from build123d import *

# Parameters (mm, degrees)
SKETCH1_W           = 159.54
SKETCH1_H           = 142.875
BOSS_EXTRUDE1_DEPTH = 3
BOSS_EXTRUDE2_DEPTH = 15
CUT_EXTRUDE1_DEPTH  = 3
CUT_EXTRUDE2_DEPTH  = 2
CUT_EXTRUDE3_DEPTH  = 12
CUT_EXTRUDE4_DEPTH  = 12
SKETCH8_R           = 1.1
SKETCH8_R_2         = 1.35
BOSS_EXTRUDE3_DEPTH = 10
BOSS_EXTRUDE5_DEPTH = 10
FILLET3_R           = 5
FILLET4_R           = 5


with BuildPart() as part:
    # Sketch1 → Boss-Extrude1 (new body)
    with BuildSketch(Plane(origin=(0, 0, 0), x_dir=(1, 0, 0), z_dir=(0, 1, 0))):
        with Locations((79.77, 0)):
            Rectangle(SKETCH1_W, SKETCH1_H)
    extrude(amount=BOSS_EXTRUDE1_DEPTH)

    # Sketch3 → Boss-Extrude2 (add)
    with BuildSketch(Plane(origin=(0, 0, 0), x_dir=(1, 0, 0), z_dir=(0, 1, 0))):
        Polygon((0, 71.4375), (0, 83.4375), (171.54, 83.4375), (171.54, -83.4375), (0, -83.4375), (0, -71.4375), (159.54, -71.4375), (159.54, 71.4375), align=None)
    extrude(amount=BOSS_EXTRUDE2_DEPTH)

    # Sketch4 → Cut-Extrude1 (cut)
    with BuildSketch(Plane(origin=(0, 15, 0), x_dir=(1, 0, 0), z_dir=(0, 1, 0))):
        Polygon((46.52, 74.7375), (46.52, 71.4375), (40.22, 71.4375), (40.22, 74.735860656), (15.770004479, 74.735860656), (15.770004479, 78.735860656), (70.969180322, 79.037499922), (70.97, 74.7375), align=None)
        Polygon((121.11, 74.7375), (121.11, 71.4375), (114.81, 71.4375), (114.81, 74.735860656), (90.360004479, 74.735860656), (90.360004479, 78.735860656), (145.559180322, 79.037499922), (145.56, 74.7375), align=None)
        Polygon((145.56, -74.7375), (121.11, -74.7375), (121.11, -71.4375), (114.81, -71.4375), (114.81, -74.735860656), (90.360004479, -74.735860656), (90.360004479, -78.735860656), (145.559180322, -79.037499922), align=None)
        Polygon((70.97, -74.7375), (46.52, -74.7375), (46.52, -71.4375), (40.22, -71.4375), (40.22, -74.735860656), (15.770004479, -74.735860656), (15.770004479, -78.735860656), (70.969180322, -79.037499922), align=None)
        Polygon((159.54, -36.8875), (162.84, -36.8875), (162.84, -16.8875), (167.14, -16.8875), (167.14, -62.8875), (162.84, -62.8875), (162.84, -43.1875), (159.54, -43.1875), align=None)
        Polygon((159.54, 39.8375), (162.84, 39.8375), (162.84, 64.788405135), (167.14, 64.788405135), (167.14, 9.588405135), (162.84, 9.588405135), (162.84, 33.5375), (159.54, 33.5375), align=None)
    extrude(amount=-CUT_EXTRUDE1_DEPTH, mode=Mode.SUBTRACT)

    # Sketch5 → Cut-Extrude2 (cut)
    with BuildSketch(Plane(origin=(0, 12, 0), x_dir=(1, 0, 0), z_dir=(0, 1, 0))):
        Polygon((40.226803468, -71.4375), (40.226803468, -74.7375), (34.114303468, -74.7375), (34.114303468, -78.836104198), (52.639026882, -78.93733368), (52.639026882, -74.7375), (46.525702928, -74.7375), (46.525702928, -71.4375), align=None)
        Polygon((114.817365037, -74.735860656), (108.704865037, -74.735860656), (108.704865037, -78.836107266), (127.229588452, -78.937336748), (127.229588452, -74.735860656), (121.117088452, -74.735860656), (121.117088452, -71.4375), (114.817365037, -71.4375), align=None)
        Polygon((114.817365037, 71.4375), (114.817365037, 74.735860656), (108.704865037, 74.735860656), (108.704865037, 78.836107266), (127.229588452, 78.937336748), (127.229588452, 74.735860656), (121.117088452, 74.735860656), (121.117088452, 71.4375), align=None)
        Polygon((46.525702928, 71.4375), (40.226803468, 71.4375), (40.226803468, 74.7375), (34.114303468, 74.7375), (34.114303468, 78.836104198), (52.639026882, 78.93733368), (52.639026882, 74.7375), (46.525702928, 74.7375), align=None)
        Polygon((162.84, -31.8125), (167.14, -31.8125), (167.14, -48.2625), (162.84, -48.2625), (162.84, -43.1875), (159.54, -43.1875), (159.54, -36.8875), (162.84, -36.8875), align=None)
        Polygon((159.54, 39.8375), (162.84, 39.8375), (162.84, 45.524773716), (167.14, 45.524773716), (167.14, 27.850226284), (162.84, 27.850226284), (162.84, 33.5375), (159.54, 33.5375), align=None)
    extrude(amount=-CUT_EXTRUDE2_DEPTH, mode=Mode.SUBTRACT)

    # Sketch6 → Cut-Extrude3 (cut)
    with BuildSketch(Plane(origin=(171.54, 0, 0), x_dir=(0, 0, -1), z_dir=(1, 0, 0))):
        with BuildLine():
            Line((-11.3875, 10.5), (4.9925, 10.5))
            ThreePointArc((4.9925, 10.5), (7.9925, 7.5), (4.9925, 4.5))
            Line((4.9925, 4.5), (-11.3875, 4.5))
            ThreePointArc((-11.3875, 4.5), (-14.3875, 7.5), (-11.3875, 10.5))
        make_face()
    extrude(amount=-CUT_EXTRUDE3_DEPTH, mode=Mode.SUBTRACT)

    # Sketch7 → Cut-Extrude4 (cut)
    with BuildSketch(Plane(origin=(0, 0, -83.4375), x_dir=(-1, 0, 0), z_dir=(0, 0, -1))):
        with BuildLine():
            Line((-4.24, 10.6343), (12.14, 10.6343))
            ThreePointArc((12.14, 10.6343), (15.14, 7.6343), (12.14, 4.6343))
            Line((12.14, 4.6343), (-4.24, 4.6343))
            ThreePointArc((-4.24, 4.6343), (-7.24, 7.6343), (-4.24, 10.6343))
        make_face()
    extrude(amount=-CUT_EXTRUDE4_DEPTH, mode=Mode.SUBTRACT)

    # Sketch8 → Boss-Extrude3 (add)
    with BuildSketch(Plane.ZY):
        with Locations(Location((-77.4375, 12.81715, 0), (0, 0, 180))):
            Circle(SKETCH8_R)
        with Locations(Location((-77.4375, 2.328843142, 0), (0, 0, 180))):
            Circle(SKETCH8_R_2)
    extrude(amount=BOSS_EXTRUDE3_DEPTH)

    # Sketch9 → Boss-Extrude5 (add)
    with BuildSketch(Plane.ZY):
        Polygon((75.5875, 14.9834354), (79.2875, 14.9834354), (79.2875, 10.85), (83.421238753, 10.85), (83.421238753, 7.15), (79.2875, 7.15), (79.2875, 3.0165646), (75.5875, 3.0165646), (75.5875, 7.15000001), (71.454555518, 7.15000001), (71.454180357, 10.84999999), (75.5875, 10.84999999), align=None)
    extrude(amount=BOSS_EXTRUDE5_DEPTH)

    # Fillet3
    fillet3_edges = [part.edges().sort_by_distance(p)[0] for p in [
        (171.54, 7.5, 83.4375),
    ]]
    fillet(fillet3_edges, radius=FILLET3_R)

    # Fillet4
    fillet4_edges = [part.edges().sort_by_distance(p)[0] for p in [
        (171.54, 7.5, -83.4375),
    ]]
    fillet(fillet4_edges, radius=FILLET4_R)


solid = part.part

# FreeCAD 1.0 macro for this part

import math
import FreeCAD as App
import Part
import Sketcher
from FreeCAD import Vector
Q = App.Units.Quantity


def edges_at(feature, points):
    """Names of the edges that pass closest to the given points."""
    edges = feature.Shape.Edges
    near = lambda p: min(range(len(edges)), key=lambda i: edges[i].distToShape(Part.Vertex(*p))[0])
    return sorted({f"Edge{near(p) + 1}" for p in points})

doc = App.newDocument("Part")
body = doc.addObject("PartDesign::Body", "Body")

sketch1 = body.newObject("Sketcher::SketchObject", "Sketch")
sketch1.AttachmentSupport = (doc.getObject("XZ_Plane"), [""])
sketch1.MapMode = "FlatFace"
sketch1.addGeometry([
    Part.LineSegment(Vector(0, -71, 0), Vector(0, 71, 0)),
    Part.LineSegment(Vector(0, 71, 0), Vector(160, 71, 0)),
    Part.LineSegment(Vector(160, 71, 0), Vector(160, -71, 0)),
    Part.LineSegment(Vector(160, -71, 0), Vector(0, -71, 0)),
], False)
sketch1.addConstraint([
    Sketcher.Constraint("Coincident", 0, 2, 1, 1),
    Sketcher.Constraint("Coincident", 1, 2, 2, 1),
    Sketcher.Constraint("Coincident", 2, 2, 3, 1),
    Sketcher.Constraint("Coincident", 3, 2, 0, 1),
    Sketcher.Constraint("Vertical", 0),
    Sketcher.Constraint("Horizontal", 1),
    Sketcher.Constraint("Vertical", 2),
    Sketcher.Constraint("Horizontal", 3),
    Sketcher.Constraint("Symmetric", 0, 2, 3, 2, -1, 1),
    Sketcher.Constraint("DistanceX", 1, 1, 1, 2, Q("159.54 mm")),
    Sketcher.Constraint("DistanceY", 0, 1, 0, 2, Q("142.875 mm")),
])
pad1 = body.newObject("PartDesign::Pad", "Pad")
pad1.Profile = sketch1
pad1.Length = 3
pad1.Reversed = True

sketch2 = body.newObject("Sketcher::SketchObject", "Sketch001")
sketch2.AttachmentSupport = (doc.getObject("XZ_Plane"), [""])
sketch2.MapMode = "FlatFace"
sketch2.addGeometry([
    Part.LineSegment(Vector(0, -83, 0), Vector(0, -71, 0)),
    Part.LineSegment(Vector(0, -71, 0), Vector(160, -71, 0)),
    Part.LineSegment(Vector(160, -71, 0), Vector(160, 71, 0)),
    Part.LineSegment(Vector(160, 71, 0), Vector(0, 71, 0)),
    Part.LineSegment(Vector(0, 71, 0), Vector(0, 83, 0)),
    Part.LineSegment(Vector(0, 83, 0), Vector(172, 83, 0)),
    Part.LineSegment(Vector(172, 83, 0), Vector(172, -83, 0)),
    Part.LineSegment(Vector(172, -83, 0), Vector(0, -83, 0)),
], False)
sketch2.addConstraint([
    Sketcher.Constraint("Coincident", 0, 2, 1, 1),
    Sketcher.Constraint("Coincident", 1, 2, 2, 1),
    Sketcher.Constraint("Coincident", 2, 2, 3, 1),
    Sketcher.Constraint("Coincident", 3, 2, 4, 1),
    Sketcher.Constraint("Coincident", 4, 2, 5, 1),
    Sketcher.Constraint("Coincident", 5, 2, 6, 1),
    Sketcher.Constraint("Coincident", 6, 2, 7, 1),
    Sketcher.Constraint("Coincident", 7, 2, 0, 1),
    Sketcher.Constraint("Vertical", 0),
    Sketcher.Constraint("Horizontal", 1),
    Sketcher.Constraint("Vertical", 2),
    Sketcher.Constraint("Horizontal", 3),
    Sketcher.Constraint("Vertical", 4),
    Sketcher.Constraint("Horizontal", 5),
    Sketcher.Constraint("Vertical", 6),
    Sketcher.Constraint("Horizontal", 7),
    Sketcher.Constraint("Symmetric", 0, 2, 3, 2, -1, 1),
    Sketcher.Constraint("Symmetric", 4, 2, 7, 2, -1),
    Sketcher.Constraint("DistanceY", 0, 1, 0, 2, Q("12 mm")),
    Sketcher.Constraint("DistanceX", 2, 2, 5, 2, Q("12 mm")),
    Sketcher.Constraint("DistanceX", 1, 1, 1, 2, Q("159.54 mm")),
    Sketcher.Constraint("DistanceY", 2, 1, 2, 2, Q("142.875 mm")),
])
pad2 = body.newObject("PartDesign::Pad", "Pad001")
pad2.Profile = sketch2
pad2.Length = 15
pad2.Reversed = True

sketch3 = body.newObject("Sketcher::SketchObject", "Sketch002")
sketch3.AttachmentSupport = (doc.getObject("XZ_Plane"), [""])
sketch3.MapMode = "FlatFace"
sketch3.AttachmentOffset = App.Placement(Vector(0, 0, -15), App.Rotation())
sketch3.addGeometry([
    Part.LineSegment(Vector(46.5, -71.4, 0), Vector(46.5, -74.7, 0)),
    Part.LineSegment(Vector(46.5, -74.7, 0), Vector(71, -74.7, 0)),
    Part.LineSegment(Vector(71, -74.7, 0), Vector(71, -79, 0)),
    Part.LineSegment(Vector(71, -79, 0), Vector(15.8, -78.7, 0)),
    Part.LineSegment(Vector(15.8, -78.7, 0), Vector(15.8, -74.7, 0)),
    Part.LineSegment(Vector(15.8, -74.7, 0), Vector(40.2, -74.7, 0)),
    Part.LineSegment(Vector(40.2, -74.7, 0), Vector(40.2, -71.4, 0)),
    Part.LineSegment(Vector(40.2, -71.4, 0), Vector(46.5, -71.4, 0)),
    Part.LineSegment(Vector(121.1, -71.4, 0), Vector(121.1, -74.7, 0)),
    Part.LineSegment(Vector(121.1, -74.7, 0), Vector(145.6, -74.7, 0)),
    Part.LineSegment(Vector(145.6, -74.7, 0), Vector(145.6, -79, 0)),
    Part.LineSegment(Vector(145.6, -79, 0), Vector(90.4, -78.7, 0)),
    Part.LineSegment(Vector(90.4, -78.7, 0), Vector(90.4, -74.7, 0)),
    Part.LineSegment(Vector(90.4, -74.7, 0), Vector(114.8, -74.7, 0)),
    Part.LineSegment(Vector(114.8, -74.7, 0), Vector(114.8, -71.4, 0)),
    Part.LineSegment(Vector(114.8, -71.4, 0), Vector(121.1, -71.4, 0)),
    Part.LineSegment(Vector(145.6, 74.7, 0), Vector(121.1, 74.7, 0)),
    Part.LineSegment(Vector(121.1, 74.7, 0), Vector(121.1, 71.4, 0)),
    Part.LineSegment(Vector(121.1, 71.4, 0), Vector(114.8, 71.4, 0)),
    Part.LineSegment(Vector(114.8, 71.4, 0), Vector(114.8, 74.7, 0)),
    Part.LineSegment(Vector(114.8, 74.7, 0), Vector(90.4, 74.7, 0)),
    Part.LineSegment(Vector(90.4, 74.7, 0), Vector(90.4, 78.7, 0)),
    Part.LineSegment(Vector(90.4, 78.7, 0), Vector(145.6, 79, 0)),
    Part.LineSegment(Vector(145.6, 79, 0), Vector(145.6, 74.7, 0)),
    Part.LineSegment(Vector(71, 74.7, 0), Vector(46.5, 74.7, 0)),
    Part.LineSegment(Vector(46.5, 74.7, 0), Vector(46.5, 71.4, 0)),
    Part.LineSegment(Vector(46.5, 71.4, 0), Vector(40.2, 71.4, 0)),
    Part.LineSegment(Vector(40.2, 71.4, 0), Vector(40.2, 74.7, 0)),
    Part.LineSegment(Vector(40.2, 74.7, 0), Vector(15.8, 74.7, 0)),
    Part.LineSegment(Vector(15.8, 74.7, 0), Vector(15.8, 78.7, 0)),
    Part.LineSegment(Vector(15.8, 78.7, 0), Vector(71, 79, 0)),
    Part.LineSegment(Vector(71, 79, 0), Vector(71, 74.7, 0)),
    Part.LineSegment(Vector(162.8, 36.9, 0), Vector(159.5, 36.9, 0)),
    Part.LineSegment(Vector(159.5, 36.9, 0), Vector(159.5, 43.2, 0)),
    Part.LineSegment(Vector(159.5, 43.2, 0), Vector(162.8, 43.2, 0)),
    Part.LineSegment(Vector(162.8, 43.2, 0), Vector(162.8, 62.9, 0)),
    Part.LineSegment(Vector(162.8, 62.9, 0), Vector(167.1, 62.9, 0)),
    Part.LineSegment(Vector(167.1, 62.9, 0), Vector(167.1, 16.9, 0)),
    Part.LineSegment(Vector(167.1, 16.9, 0), Vector(162.8, 16.9, 0)),
    Part.LineSegment(Vector(162.8, 16.9, 0), Vector(162.8, 36.9, 0)),
    Part.LineSegment(Vector(162.8, -39.8, 0), Vector(159.5, -39.8, 0)),
    Part.LineSegment(Vector(159.5, -39.8, 0), Vector(159.5, -33.5, 0)),
    Part.LineSegment(Vector(159.5, -33.5, 0), Vector(162.8, -33.5, 0)),
    Part.LineSegment(Vector(162.8, -33.5, 0), Vector(162.8, -9.6, 0)),
    Part.LineSegment(Vector(162.8, -9.6, 0), Vector(167.1, -9.6, 0)),
    Part.LineSegment(Vector(167.1, -9.6, 0), Vector(167.1, -64.8, 0)),
    Part.LineSegment(Vector(167.1, -64.8, 0), Vector(162.8, -64.8, 0)),
    Part.LineSegment(Vector(162.8, -64.8, 0), Vector(162.8, -39.8, 0)),
], False)
sketch3.addConstraint([
    Sketcher.Constraint("Coincident", 0, 2, 1, 1),
    Sketcher.Constraint("Coincident", 1, 2, 2, 1),
    Sketcher.Constraint("Coincident", 2, 2, 3, 1),
    Sketcher.Constraint("Coincident", 3, 2, 4, 1),
    Sketcher.Constraint("Coincident", 4, 2, 5, 1),
    Sketcher.Constraint("Coincident", 5, 2, 6, 1),
    Sketcher.Constraint("Coincident", 6, 2, 7, 1),
    Sketcher.Constraint("Coincident", 7, 2, 0, 1),
    Sketcher.Constraint("Coincident", 8, 2, 9, 1),
    Sketcher.Constraint("Coincident", 9, 2, 10, 1),
    Sketcher.Constraint("Coincident", 10, 2, 11, 1),
    Sketcher.Constraint("Coincident", 11, 2, 12, 1),
    Sketcher.Constraint("Coincident", 12, 2, 13, 1),
    Sketcher.Constraint("Coincident", 13, 2, 14, 1),
    Sketcher.Constraint("Coincident", 14, 2, 15, 1),
    Sketcher.Constraint("Coincident", 15, 2, 8, 1),
    Sketcher.Constraint("Coincident", 16, 2, 17, 1),
    Sketcher.Constraint("Coincident", 17, 2, 18, 1),
    Sketcher.Constraint("Coincident", 18, 2, 19, 1),
    Sketcher.Constraint("Coincident", 19, 2, 20, 1),
    Sketcher.Constraint("Coincident", 20, 2, 21, 1),
    Sketcher.Constraint("Coincident", 21, 2, 22, 1),
    Sketcher.Constraint("Coincident", 22, 2, 23, 1),
    Sketcher.Constraint("Coincident", 23, 2, 16, 1),
    Sketcher.Constraint("Coincident", 24, 2, 25, 1),
    Sketcher.Constraint("Coincident", 25, 2, 26, 1),
    Sketcher.Constraint("Coincident", 26, 2, 27, 1),
    Sketcher.Constraint("Coincident", 27, 2, 28, 1),
    Sketcher.Constraint("Coincident", 28, 2, 29, 1),
    Sketcher.Constraint("Coincident", 29, 2, 30, 1),
    Sketcher.Constraint("Coincident", 30, 2, 31, 1),
    Sketcher.Constraint("Coincident", 31, 2, 24, 1),
    Sketcher.Constraint("Coincident", 32, 2, 33, 1),
    Sketcher.Constraint("Coincident", 33, 2, 34, 1),
    Sketcher.Constraint("Coincident", 34, 2, 35, 1),
    Sketcher.Constraint("Coincident", 35, 2, 36, 1),
    Sketcher.Constraint("Coincident", 36, 2, 37, 1),
    Sketcher.Constraint("Coincident", 37, 2, 38, 1),
    Sketcher.Constraint("Coincident", 38, 2, 39, 1),
    Sketcher.Constraint("Coincident", 39, 2, 32, 1),
    Sketcher.Constraint("Coincident", 40, 2, 41, 1),
    Sketcher.Constraint("Coincident", 41, 2, 42, 1),
    Sketcher.Constraint("Coincident", 42, 2, 43, 1),
    Sketcher.Constraint("Coincident", 43, 2, 44, 1),
    Sketcher.Constraint("Coincident", 44, 2, 45, 1),
    Sketcher.Constraint("Coincident", 45, 2, 46, 1),
    Sketcher.Constraint("Coincident", 46, 2, 47, 1),
    Sketcher.Constraint("Coincident", 47, 2, 40, 1),
    Sketcher.Constraint("Vertical", 0),
    Sketcher.Constraint("Horizontal", 1),
    Sketcher.Constraint("Vertical", 4),
    Sketcher.Constraint("Horizontal", 5),
    Sketcher.Constraint("Vertical", 6),
    Sketcher.Constraint("Horizontal", 7),
    Sketcher.Constraint("Vertical", 8),
    Sketcher.Constraint("Horizontal", 9),
    Sketcher.Constraint("Vertical", 12),
    Sketcher.Constraint("Horizontal", 13),
    Sketcher.Constraint("Vertical", 14),
    Sketcher.Constraint("Horizontal", 15),
    Sketcher.Constraint("Horizontal", 16),
    Sketcher.Constraint("Vertical", 17),
    Sketcher.Constraint("Horizontal", 18),
    Sketcher.Constraint("Vertical", 19),
    Sketcher.Constraint("Horizontal", 20),
    Sketcher.Constraint("Vertical", 21),
    Sketcher.Constraint("Horizontal", 24),
    Sketcher.Constraint("Vertical", 25),
    Sketcher.Constraint("Horizontal", 26),
    Sketcher.Constraint("Vertical", 27),
    Sketcher.Constraint("Horizontal", 28),
    Sketcher.Constraint("Vertical", 29),
    Sketcher.Constraint("Horizontal", 32),
    Sketcher.Constraint("Vertical", 33),
    Sketcher.Constraint("Horizontal", 34),
    Sketcher.Constraint("Vertical", 35),
    Sketcher.Constraint("Horizontal", 36),
    Sketcher.Constraint("Vertical", 37),
    Sketcher.Constraint("Horizontal", 38),
    Sketcher.Constraint("Vertical", 39),
    Sketcher.Constraint("Horizontal", 40),
    Sketcher.Constraint("Vertical", 41),
    Sketcher.Constraint("Horizontal", 42),
    Sketcher.Constraint("Vertical", 43),
    Sketcher.Constraint("Horizontal", 44),
    Sketcher.Constraint("Vertical", 45),
    Sketcher.Constraint("Horizontal", 46),
    Sketcher.Constraint("Vertical", 47),
    Sketcher.Constraint("Symmetric", 8, 2, 16, 2, -1),
    Sketcher.Constraint("Symmetric", 14, 2, 18, 2, -1),
    Sketcher.Constraint("Symmetric", 12, 2, 20, 2, -1),
    Sketcher.Constraint("Symmetric", 10, 2, 22, 2, -1),
    Sketcher.Constraint("Symmetric", 0, 2, 24, 2, -1),
    Sketcher.Constraint("Symmetric", 6, 2, 26, 2, -1),
    Sketcher.Constraint("Symmetric", 4, 2, 28, 2, -1),
    Sketcher.Constraint("Symmetric", 2, 2, 30, 2, -1),
    Sketcher.Constraint("Parallel", 2, 10),
    Sketcher.Constraint("Parallel", 3, 11),
    Sketcher.Constraint("Parallel", 22, 30),
    Sketcher.Constraint("Parallel", 23, 31),
    Sketcher.Constraint("Horizontal", 1, 2, 8, 2),
    Sketcher.Constraint("Horizontal", 2, 2, 10, 2),
    Sketcher.Constraint("Horizontal", 3, 2, 11, 2),
    Sketcher.Constraint("Horizontal", 5, 2, 12, 2),
    Sketcher.Constraint("Horizontal", 7, 2, 14, 2),
    Sketcher.Constraint("Vertical", 9, 2, 23, 2),
    Sketcher.Constraint("Vertical", 35, 2, 38, 2),
    Sketcher.Constraint("Vertical", 33, 2, 40, 2),
    Sketcher.Constraint("Vertical", 39, 2, 42, 2),
    Sketcher.Constraint("Vertical", 37, 2, 44, 2),
    Sketcher.Constraint("Vertical", 43, 2, 46, 2),
    Sketcher.Constraint("Equal", 1, 9),
    Sketcher.Constraint("Equal", 5, 13),
    Sketcher.Constraint("Equal", 42, 0),
    Sketcher.Constraint("Equal", 12, 21),
    Sketcher.Constraint("Equal", 26, 33),
    Sketcher.Constraint("Equal", 33, 41),
    Sketcher.Constraint("DistanceY", 4, 1, 4, 2, Q("4 mm")),
    Sketcher.Constraint("DistanceY", 37, 2, 37, 1, Q("46 mm")),
    Sketcher.Constraint("DistanceY", 39, 1, 39, 2, Q("20 mm")),
    Sketcher.Constraint("DistanceX", 7, 1, 7, 2, Q("6.3 mm")),
    Sketcher.Constraint("DistanceX", 32, 2, 32, 1, Q("3.3 mm")),
    Sketcher.Constraint("DistanceX", 36, 1, 36, 2, Q("4.3 mm")),
    Sketcher.Constraint("DistanceY", 45, 2, 45, 1, Q("55.2 mm")),
    Sketcher.Constraint("Distance", 2, Q("4.3 mm")),
    Sketcher.Constraint("Distance", 3, Q("55.2 mm")),
    Sketcher.Constraint("DistanceX", 1, 1, 1, 2, Q("24.45 mm")),
    Sketcher.Constraint("DistanceY", 9, 2, 40, 2, Q("34.9 mm")),
    Sketcher.Constraint("DistanceX", -1, 1, 0, 2, Q("46.52 mm")),
    Sketcher.Constraint("DistanceX", -1, 1, 8, 2, Q("121.11 mm")),
    Sketcher.Constraint("DistanceX", -1, 1, 32, 2, Q("159.54 mm")),
    Sketcher.Constraint("DistanceY", 32, 2, 23, 2, Q("37.85 mm")),
    Sketcher.Constraint("DistanceY", 15, 2, 16, 2, Q("146.175 mm")),
    Sketcher.Constraint("DistanceY", 6, 1, 6, 2, Q("3.298361 mm")),
    Sketcher.Constraint("DistanceX", 5, 1, 5, 2, Q("24.449996 mm")),
    Sketcher.Constraint("DistanceY", 43, 1, 43, 2, Q("23.949095 mm")),
])
pocket1 = body.newObject("PartDesign::Pocket", "Pocket")
pocket1.Profile = sketch3
pocket1.Length = 3
pocket1.Reversed = True

sketch4 = body.newObject("Sketcher::SketchObject", "Sketch003")
sketch4.AttachmentSupport = (doc.getObject("XZ_Plane"), [""])
sketch4.MapMode = "FlatFace"
sketch4.AttachmentOffset = App.Placement(Vector(0, 0, -12), App.Rotation())
sketch4.addGeometry([
    Part.LineSegment(Vector(40.2, 71.4, 0), Vector(40.2, 74.7, 0)),
    Part.LineSegment(Vector(40.2, 74.7, 0), Vector(34.1, 74.7, 0)),
    Part.LineSegment(Vector(34.1, 74.7, 0), Vector(34.1, 78.8, 0)),
    Part.LineSegment(Vector(34.1, 78.8, 0), Vector(52.6, 78.9, 0)),
    Part.LineSegment(Vector(52.6, 78.9, 0), Vector(52.6, 74.7, 0)),
    Part.LineSegment(Vector(52.6, 74.7, 0), Vector(46.5, 74.7, 0)),
    Part.LineSegment(Vector(46.5, 74.7, 0), Vector(46.5, 71.4, 0)),
    Part.LineSegment(Vector(46.5, 71.4, 0), Vector(40.2, 71.4, 0)),
    Part.LineSegment(Vector(114.8, 74.7, 0), Vector(108.7, 74.7, 0)),
    Part.LineSegment(Vector(108.7, 74.7, 0), Vector(108.7, 78.8, 0)),
    Part.LineSegment(Vector(108.7, 78.8, 0), Vector(127.2, 78.9, 0)),
    Part.LineSegment(Vector(127.2, 78.9, 0), Vector(127.2, 74.7, 0)),
    Part.LineSegment(Vector(127.2, 74.7, 0), Vector(121.1, 74.7, 0)),
    Part.LineSegment(Vector(121.1, 74.7, 0), Vector(121.1, 71.4, 0)),
    Part.LineSegment(Vector(121.1, 71.4, 0), Vector(114.8, 71.4, 0)),
    Part.LineSegment(Vector(114.8, 71.4, 0), Vector(114.8, 74.7, 0)),
    Part.LineSegment(Vector(114.8, -74.7, 0), Vector(114.8, -71.4, 0)),
    Part.LineSegment(Vector(114.8, -71.4, 0), Vector(121.1, -71.4, 0)),
    Part.LineSegment(Vector(121.1, -71.4, 0), Vector(121.1, -74.7, 0)),
    Part.LineSegment(Vector(121.1, -74.7, 0), Vector(127.2, -74.7, 0)),
    Part.LineSegment(Vector(127.2, -74.7, 0), Vector(127.2, -78.9, 0)),
    Part.LineSegment(Vector(127.2, -78.9, 0), Vector(108.7, -78.8, 0)),
    Part.LineSegment(Vector(108.7, -78.8, 0), Vector(108.7, -74.7, 0)),
    Part.LineSegment(Vector(108.7, -74.7, 0), Vector(114.8, -74.7, 0)),
    Part.LineSegment(Vector(40.2, -71.4, 0), Vector(46.5, -71.4, 0)),
    Part.LineSegment(Vector(46.5, -71.4, 0), Vector(46.5, -74.7, 0)),
    Part.LineSegment(Vector(46.5, -74.7, 0), Vector(52.6, -74.7, 0)),
    Part.LineSegment(Vector(52.6, -74.7, 0), Vector(52.6, -78.9, 0)),
    Part.LineSegment(Vector(52.6, -78.9, 0), Vector(34.1, -78.8, 0)),
    Part.LineSegment(Vector(34.1, -78.8, 0), Vector(34.1, -74.7, 0)),
    Part.LineSegment(Vector(34.1, -74.7, 0), Vector(40.2, -74.7, 0)),
    Part.LineSegment(Vector(40.2, -74.7, 0), Vector(40.2, -71.4, 0)),
    Part.LineSegment(Vector(167.1, 31.8, 0), Vector(162.8, 31.8, 0)),
    Part.LineSegment(Vector(162.8, 31.8, 0), Vector(162.8, 36.9, 0)),
    Part.LineSegment(Vector(162.8, 36.9, 0), Vector(159.5, 36.9, 0)),
    Part.LineSegment(Vector(159.5, 36.9, 0), Vector(159.5, 43.2, 0)),
    Part.LineSegment(Vector(159.5, 43.2, 0), Vector(162.8, 43.2, 0)),
    Part.LineSegment(Vector(162.8, 43.2, 0), Vector(162.8, 48.3, 0)),
    Part.LineSegment(Vector(162.8, 48.3, 0), Vector(167.1, 48.3, 0)),
    Part.LineSegment(Vector(167.1, 48.3, 0), Vector(167.1, 31.8, 0)),
    Part.LineSegment(Vector(162.8, -39.8, 0), Vector(159.5, -39.8, 0)),
    Part.LineSegment(Vector(159.5, -39.8, 0), Vector(159.5, -33.5, 0)),
    Part.LineSegment(Vector(159.5, -33.5, 0), Vector(162.8, -33.5, 0)),
    Part.LineSegment(Vector(162.8, -33.5, 0), Vector(162.8, -27.9, 0)),
    Part.LineSegment(Vector(162.8, -27.9, 0), Vector(167.1, -27.9, 0)),
    Part.LineSegment(Vector(167.1, -27.9, 0), Vector(167.1, -45.5, 0)),
    Part.LineSegment(Vector(167.1, -45.5, 0), Vector(162.8, -45.5, 0)),
    Part.LineSegment(Vector(162.8, -45.5, 0), Vector(162.8, -39.8, 0)),
], False)
sketch4.addConstraint([
    Sketcher.Constraint("Coincident", 0, 2, 1, 1),
    Sketcher.Constraint("Coincident", 1, 2, 2, 1),
    Sketcher.Constraint("Coincident", 2, 2, 3, 1),
    Sketcher.Constraint("Coincident", 3, 2, 4, 1),
    Sketcher.Constraint("Coincident", 4, 2, 5, 1),
    Sketcher.Constraint("Coincident", 5, 2, 6, 1),
    Sketcher.Constraint("Coincident", 6, 2, 7, 1),
    Sketcher.Constraint("Coincident", 7, 2, 0, 1),
    Sketcher.Constraint("Coincident", 8, 2, 9, 1),
    Sketcher.Constraint("Coincident", 9, 2, 10, 1),
    Sketcher.Constraint("Coincident", 10, 2, 11, 1),
    Sketcher.Constraint("Coincident", 11, 2, 12, 1),
    Sketcher.Constraint("Coincident", 12, 2, 13, 1),
    Sketcher.Constraint("Coincident", 13, 2, 14, 1),
    Sketcher.Constraint("Coincident", 14, 2, 15, 1),
    Sketcher.Constraint("Coincident", 15, 2, 8, 1),
    Sketcher.Constraint("Coincident", 16, 2, 17, 1),
    Sketcher.Constraint("Coincident", 17, 2, 18, 1),
    Sketcher.Constraint("Coincident", 18, 2, 19, 1),
    Sketcher.Constraint("Coincident", 19, 2, 20, 1),
    Sketcher.Constraint("Coincident", 20, 2, 21, 1),
    Sketcher.Constraint("Coincident", 21, 2, 22, 1),
    Sketcher.Constraint("Coincident", 22, 2, 23, 1),
    Sketcher.Constraint("Coincident", 23, 2, 16, 1),
    Sketcher.Constraint("Coincident", 24, 2, 25, 1),
    Sketcher.Constraint("Coincident", 25, 2, 26, 1),
    Sketcher.Constraint("Coincident", 26, 2, 27, 1),
    Sketcher.Constraint("Coincident", 27, 2, 28, 1),
    Sketcher.Constraint("Coincident", 28, 2, 29, 1),
    Sketcher.Constraint("Coincident", 29, 2, 30, 1),
    Sketcher.Constraint("Coincident", 30, 2, 31, 1),
    Sketcher.Constraint("Coincident", 31, 2, 24, 1),
    Sketcher.Constraint("Coincident", 32, 2, 33, 1),
    Sketcher.Constraint("Coincident", 33, 2, 34, 1),
    Sketcher.Constraint("Coincident", 34, 2, 35, 1),
    Sketcher.Constraint("Coincident", 35, 2, 36, 1),
    Sketcher.Constraint("Coincident", 36, 2, 37, 1),
    Sketcher.Constraint("Coincident", 37, 2, 38, 1),
    Sketcher.Constraint("Coincident", 38, 2, 39, 1),
    Sketcher.Constraint("Coincident", 39, 2, 32, 1),
    Sketcher.Constraint("Coincident", 40, 2, 41, 1),
    Sketcher.Constraint("Coincident", 41, 2, 42, 1),
    Sketcher.Constraint("Coincident", 42, 2, 43, 1),
    Sketcher.Constraint("Coincident", 43, 2, 44, 1),
    Sketcher.Constraint("Coincident", 44, 2, 45, 1),
    Sketcher.Constraint("Coincident", 45, 2, 46, 1),
    Sketcher.Constraint("Coincident", 46, 2, 47, 1),
    Sketcher.Constraint("Coincident", 47, 2, 40, 1),
    Sketcher.Constraint("Vertical", 0),
    Sketcher.Constraint("Horizontal", 1),
    Sketcher.Constraint("Vertical", 2),
    Sketcher.Constraint("Vertical", 4),
    Sketcher.Constraint("Horizontal", 5),
    Sketcher.Constraint("Vertical", 6),
    Sketcher.Constraint("Horizontal", 7),
    Sketcher.Constraint("Horizontal", 8),
    Sketcher.Constraint("Vertical", 9),
    Sketcher.Constraint("Vertical", 11),
    Sketcher.Constraint("Horizontal", 12),
    Sketcher.Constraint("Vertical", 13),
    Sketcher.Constraint("Horizontal", 14),
    Sketcher.Constraint("Vertical", 15),
    Sketcher.Constraint("Vertical", 16),
    Sketcher.Constraint("Horizontal", 17),
    Sketcher.Constraint("Vertical", 18),
    Sketcher.Constraint("Horizontal", 19),
    Sketcher.Constraint("Vertical", 20),
    Sketcher.Constraint("Vertical", 22),
    Sketcher.Constraint("Horizontal", 23),
    Sketcher.Constraint("Horizontal", 24),
    Sketcher.Constraint("Vertical", 25),
    Sketcher.Constraint("Horizontal", 26),
    Sketcher.Constraint("Vertical", 27),
    Sketcher.Constraint("Vertical", 29),
    Sketcher.Constraint("Horizontal", 30),
    Sketcher.Constraint("Vertical", 31),
    Sketcher.Constraint("Horizontal", 32),
    Sketcher.Constraint("Vertical", 33),
    Sketcher.Constraint("Horizontal", 34),
    Sketcher.Constraint("Vertical", 35),
    Sketcher.Constraint("Horizontal", 36),
    Sketcher.Constraint("Vertical", 37),
    Sketcher.Constraint("Horizontal", 38),
    Sketcher.Constraint("Vertical", 39),
    Sketcher.Constraint("Horizontal", 40),
    Sketcher.Constraint("Vertical", 41),
    Sketcher.Constraint("Horizontal", 42),
    Sketcher.Constraint("Vertical", 43),
    Sketcher.Constraint("Horizontal", 44),
    Sketcher.Constraint("Vertical", 45),
    Sketcher.Constraint("Horizontal", 46),
    Sketcher.Constraint("Vertical", 47),
    Sketcher.Constraint("Symmetric", 14, 2, 16, 2, -1),
    Sketcher.Constraint("Symmetric", 12, 2, 18, 2, -1),
    Sketcher.Constraint("Symmetric", 10, 2, 20, 2, -1),
    Sketcher.Constraint("Symmetric", 9, 2, 21, 2, -1),
    Sketcher.Constraint("Symmetric", 6, 2, 24, 2, -1),
    Sketcher.Constraint("Symmetric", 4, 2, 26, 2, -1),
    Sketcher.Constraint("Symmetric", 2, 2, 28, 2, -1),
    Sketcher.Constraint("Symmetric", 0, 2, 30, 2, -1),
    Sketcher.Constraint("Parallel", 3, 10),
    Sketcher.Constraint("Parallel", 21, 28),
    Sketcher.Constraint("Horizontal", 1, 2, 4, 2),
    Sketcher.Constraint("Horizontal", 8, 2, 11, 2),
    Sketcher.Constraint("Horizontal", 7, 2, 13, 2),
    Sketcher.Constraint("Horizontal", 19, 2, 22, 2),
    Sketcher.Constraint("Vertical", 33, 2, 36, 2),
    Sketcher.Constraint("Vertical", 35, 2, 40, 2),
    Sketcher.Constraint("Vertical", 37, 2, 42, 2),
    Sketcher.Constraint("Vertical", 39, 2, 44, 2),
    Sketcher.Constraint("Vertical", 43, 2, 46, 2),
    Sketcher.Constraint("Equal", 1, 8),
    Sketcher.Constraint("Equal", 8, 12),
    Sketcher.Constraint("Equal", 42, 0),
    Sketcher.Constraint("Equal", 33, 37),
    Sketcher.Constraint("Equal", 35, 41),
    Sketcher.Constraint("Equal", 43, 47),
    Sketcher.Constraint("Equal", 3, 10),
    Sketcher.Constraint("DistanceX", 32, 2, 32, 1, Q("4.3 mm")),
    Sketcher.Constraint("DistanceX", 34, 2, 34, 1, Q("3.3 mm")),
    Sketcher.Constraint("DistanceY", 35, 1, 35, 2, Q("6.3 mm")),
    Sketcher.Constraint("DistanceY", 39, 2, 39, 1, Q("16.45 mm")),
    Sketcher.Constraint("DistanceY", 17, 2, 40, 2, Q("31.6 mm")),
    Sketcher.Constraint("DistanceX", -1, 1, 32, 2, Q("162.84 mm")),
    Sketcher.Constraint("DistanceY", 33, 2, 13, 2, Q("34.55 mm")),
    Sketcher.Constraint("Distance", 3, Q("18.525 mm")),
    Sketcher.Constraint("DistanceX", 1, 2, 1, 1, Q("6.1125 mm")),
    Sketcher.Constraint("DistanceX", 7, 2, 7, 1, Q("6.298899 mm")),
    Sketcher.Constraint("DistanceY", 16, 2, 14, 2, Q("142.875 mm")),
    Sketcher.Constraint("DistanceY", 13, 2, 13, 1, Q("3.298361 mm")),
    Sketcher.Constraint("DistanceY", 2, 1, 2, 2, Q("4.098604 mm")),
    Sketcher.Constraint("DistanceY", 4, 2, 4, 1, Q("4.199834 mm")),
    Sketcher.Constraint("DistanceY", 9, 1, 9, 2, Q("4.100247 mm")),
    Sketcher.Constraint("DistanceY", 43, 1, 43, 2, Q("5.687274 mm")),
    Sketcher.Constraint("DistanceX", -1, 1, 10, 2, Q("127.229588 mm")),
    Sketcher.Constraint("DistanceX", 4, 2, 8, 2, Q("56.065838 mm")),
])
pocket2 = body.newObject("PartDesign::Pocket", "Pocket001")
pocket2.Profile = sketch4
pocket2.Length = 2
pocket2.Reversed = True

sketch5 = body.newObject("Sketcher::SketchObject", "Sketch004")
sketch5.AttachmentSupport = (doc.getObject("YZ_Plane"), [""])
sketch5.MapMode = "FlatFace"
sketch5.AttachmentOffset = App.Placement(Vector(0, 0, 171.54), App.Rotation())
sketch5.addGeometry([
    Part.LineSegment(Vector(10.5, -5, 0), Vector(10.5, 11.4, 0)),
    Part.ArcOfCircle(Part.Circle(Vector(7.5, 11.4, 0), Vector(0, 0, 1), 3), math.radians(0), math.radians(180)),
    Part.LineSegment(Vector(4.5, 11.4, 0), Vector(4.5, -5, 0)),
    Part.ArcOfCircle(Part.Circle(Vector(7.5, -5, 0), Vector(0, 0, 1), 3), math.radians(180), math.radians(360)),
], False)
sketch5.addConstraint([
    Sketcher.Constraint("Tangent", 0, 2, 1, 1),
    Sketcher.Constraint("Tangent", 1, 2, 2, 1),
    Sketcher.Constraint("Tangent", 2, 2, 3, 1),
    Sketcher.Constraint("Tangent", 3, 2, 0, 1),
    Sketcher.Constraint("Vertical", 0),
    Sketcher.Constraint("Vertical", 2),
    Sketcher.Constraint("Radius", 1, Q("3 mm")),
    Sketcher.Constraint("DistanceY", 0, 1, 0, 2, Q("16.38 mm")),
    Sketcher.Constraint("DistanceX", -1, 1, 1, 3, Q("7.5 mm")),
    Sketcher.Constraint("DistanceY", -1, 1, 1, 3, Q("11.3875 mm")),
])
pocket3 = body.newObject("PartDesign::Pocket", "Pocket002")
pocket3.Profile = sketch5
pocket3.Length = 12

sketch6 = body.newObject("Sketcher::SketchObject", "Sketch005")
sketch6.AttachmentSupport = (doc.getObject("XY_Plane"), [""])
sketch6.MapMode = "FlatFace"
sketch6.AttachmentOffset = App.Placement(Vector(0, 0, -83.4375), App.Rotation())
sketch6.addGeometry([
    Part.LineSegment(Vector(-12.1, 10.6, 0), Vector(4.2, 10.6, 0)),
    Part.ArcOfCircle(Part.Circle(Vector(4.2, 7.6, 0), Vector(0, 0, 1), 3), math.radians(-90), math.radians(90)),
    Part.LineSegment(Vector(4.2, 4.6, 0), Vector(-12.1, 4.6, 0)),
    Part.ArcOfCircle(Part.Circle(Vector(-12.1, 7.6, 0), Vector(0, 0, 1), 3), math.radians(90), math.radians(270)),
], False)
sketch6.addConstraint([
    Sketcher.Constraint("Tangent", 0, 2, 1, 2),
    Sketcher.Constraint("Tangent", 1, 1, 2, 1),
    Sketcher.Constraint("Tangent", 2, 2, 3, 2),
    Sketcher.Constraint("Tangent", 3, 1, 0, 1),
    Sketcher.Constraint("Horizontal", 0),
    Sketcher.Constraint("Horizontal", 2),
    Sketcher.Constraint("Radius", 1, Q("3 mm")),
    Sketcher.Constraint("DistanceX", 0, 1, 0, 2, Q("16.38 mm")),
    Sketcher.Constraint("DistanceX", -1, 1, 1, 3, Q("4.24 mm")),
    Sketcher.Constraint("DistanceY", -1, 1, 1, 3, Q("7.6343 mm")),
])
pocket4 = body.newObject("PartDesign::Pocket", "Pocket003")
pocket4.Profile = sketch6
pocket4.Length = 12
pocket4.Reversed = True

sketch7 = body.newObject("Sketcher::SketchObject", "Sketch006")
sketch7.AttachmentSupport = (doc.getObject("YZ_Plane"), [""])
sketch7.MapMode = "FlatFace"
sketch7.addGeometry([
    Part.Circle(Vector(12.8, -77.4, 0), Vector(0, 0, 1), 1.1),
    Part.Circle(Vector(2.3, -77.4, 0), Vector(0, 0, 1), 1.4),
], False)
sketch7.addConstraint([
    Sketcher.Constraint("Horizontal", 0, 3, 1, 3),
    Sketcher.Constraint("Diameter", 0, Q("2.2 mm")),
    Sketcher.Constraint("Diameter", 1, Q("2.7 mm")),
    Sketcher.Constraint("DistanceY", 0, 3, -1, 1, Q("77.4375 mm")),
    Sketcher.Constraint("DistanceX", -1, 1, 0, 3, Q("12.81715 mm")),
    Sketcher.Constraint("DistanceX", -1, 1, 1, 3, Q("2.328843 mm")),
])
pad3 = body.newObject("PartDesign::Pad", "Pad002")
pad3.Profile = sketch7
pad3.Length = 10
pad3.Reversed = True

sketch8 = body.newObject("Sketcher::SketchObject", "Sketch007")
sketch8.AttachmentSupport = (doc.getObject("YZ_Plane"), [""])
sketch8.MapMode = "FlatFace"
sketch8.addGeometry([
    Part.LineSegment(Vector(15, 79.3, 0), Vector(15, 75.6, 0)),
    Part.LineSegment(Vector(15, 75.6, 0), Vector(10.8, 75.6, 0)),
    Part.LineSegment(Vector(10.8, 75.6, 0), Vector(10.8, 71.5, 0)),
    Part.LineSegment(Vector(10.8, 71.5, 0), Vector(7.2, 71.5, 0)),
    Part.LineSegment(Vector(7.2, 71.5, 0), Vector(7.2, 75.6, 0)),
    Part.LineSegment(Vector(7.2, 75.6, 0), Vector(3, 75.6, 0)),
    Part.LineSegment(Vector(3, 75.6, 0), Vector(3, 79.3, 0)),
    Part.LineSegment(Vector(3, 79.3, 0), Vector(7.2, 79.3, 0)),
    Part.LineSegment(Vector(7.2, 79.3, 0), Vector(7.2, 83.4, 0)),
    Part.LineSegment(Vector(7.2, 83.4, 0), Vector(10.8, 83.4, 0)),
    Part.LineSegment(Vector(10.8, 83.4, 0), Vector(10.8, 79.3, 0)),
    Part.LineSegment(Vector(10.8, 79.3, 0), Vector(15, 79.3, 0)),
], False)
sketch8.addConstraint([
    Sketcher.Constraint("Coincident", 0, 2, 1, 1),
    Sketcher.Constraint("Coincident", 1, 2, 2, 1),
    Sketcher.Constraint("Coincident", 2, 2, 3, 1),
    Sketcher.Constraint("Coincident", 3, 2, 4, 1),
    Sketcher.Constraint("Coincident", 4, 2, 5, 1),
    Sketcher.Constraint("Coincident", 5, 2, 6, 1),
    Sketcher.Constraint("Coincident", 6, 2, 7, 1),
    Sketcher.Constraint("Coincident", 7, 2, 8, 1),
    Sketcher.Constraint("Coincident", 8, 2, 9, 1),
    Sketcher.Constraint("Coincident", 9, 2, 10, 1),
    Sketcher.Constraint("Coincident", 10, 2, 11, 1),
    Sketcher.Constraint("Coincident", 11, 2, 0, 1),
    Sketcher.Constraint("Vertical", 0),
    Sketcher.Constraint("Horizontal", 1),
    Sketcher.Constraint("Vertical", 2),
    Sketcher.Constraint("Vertical", 4),
    Sketcher.Constraint("Horizontal", 5),
    Sketcher.Constraint("Vertical", 6),
    Sketcher.Constraint("Horizontal", 7),
    Sketcher.Constraint("Vertical", 8),
    Sketcher.Constraint("Horizontal", 9),
    Sketcher.Constraint("Vertical", 10),
    Sketcher.Constraint("Horizontal", 11),
    Sketcher.Constraint("Horizontal", 1, 2, 4, 2),
    Sketcher.Constraint("Horizontal", 7, 2, 10, 2),
    Sketcher.Constraint("Vertical", 4, 2, 7, 2),
    Sketcher.Constraint("Vertical", 2, 2, 9, 2),
    Sketcher.Constraint("Equal", 1, 5),
    Sketcher.Constraint("Equal", 9, 0),
    Sketcher.Constraint("DistanceX", 9, 1, 9, 2, Q("3.7 mm")),
    Sketcher.Constraint("DistanceX", -1, 1, 1, 2, Q("10.85 mm")),
    Sketcher.Constraint("DistanceY", 2, 2, 2, 1, Q("4.13332 mm")),
    Sketcher.Constraint("DistanceY", 8, 1, 8, 2, Q("4.133739 mm")),
    Sketcher.Constraint("DistanceY", -1, 1, 0, 2, Q("75.5875 mm")),
    Sketcher.Constraint("DistanceX", 1, 2, 1, 1, Q("4.133435 mm")),
    Sketcher.Constraint("DistanceY", 4, 1, 4, 2, Q("4.132944 mm")),
])
pad4 = body.newObject("PartDesign::Pad", "Pad003")
pad4.Profile = sketch8
pad4.Length = 10
pad4.Reversed = True
doc.recompute()

fillet = body.newObject("PartDesign::Fillet", "Fillet")
fillet.Base = (pad4, edges_at(pad4, [(171.54, 7.5, 83.438)]))
fillet.Radius = 5
doc.recompute()

fillet2 = body.newObject("PartDesign::Fillet", "Fillet001")
fillet2.Base = (fillet, edges_at(fillet, [(171.54, 7.5, -83.438)]))
fillet2.Radius = 5

doc.recompute()
